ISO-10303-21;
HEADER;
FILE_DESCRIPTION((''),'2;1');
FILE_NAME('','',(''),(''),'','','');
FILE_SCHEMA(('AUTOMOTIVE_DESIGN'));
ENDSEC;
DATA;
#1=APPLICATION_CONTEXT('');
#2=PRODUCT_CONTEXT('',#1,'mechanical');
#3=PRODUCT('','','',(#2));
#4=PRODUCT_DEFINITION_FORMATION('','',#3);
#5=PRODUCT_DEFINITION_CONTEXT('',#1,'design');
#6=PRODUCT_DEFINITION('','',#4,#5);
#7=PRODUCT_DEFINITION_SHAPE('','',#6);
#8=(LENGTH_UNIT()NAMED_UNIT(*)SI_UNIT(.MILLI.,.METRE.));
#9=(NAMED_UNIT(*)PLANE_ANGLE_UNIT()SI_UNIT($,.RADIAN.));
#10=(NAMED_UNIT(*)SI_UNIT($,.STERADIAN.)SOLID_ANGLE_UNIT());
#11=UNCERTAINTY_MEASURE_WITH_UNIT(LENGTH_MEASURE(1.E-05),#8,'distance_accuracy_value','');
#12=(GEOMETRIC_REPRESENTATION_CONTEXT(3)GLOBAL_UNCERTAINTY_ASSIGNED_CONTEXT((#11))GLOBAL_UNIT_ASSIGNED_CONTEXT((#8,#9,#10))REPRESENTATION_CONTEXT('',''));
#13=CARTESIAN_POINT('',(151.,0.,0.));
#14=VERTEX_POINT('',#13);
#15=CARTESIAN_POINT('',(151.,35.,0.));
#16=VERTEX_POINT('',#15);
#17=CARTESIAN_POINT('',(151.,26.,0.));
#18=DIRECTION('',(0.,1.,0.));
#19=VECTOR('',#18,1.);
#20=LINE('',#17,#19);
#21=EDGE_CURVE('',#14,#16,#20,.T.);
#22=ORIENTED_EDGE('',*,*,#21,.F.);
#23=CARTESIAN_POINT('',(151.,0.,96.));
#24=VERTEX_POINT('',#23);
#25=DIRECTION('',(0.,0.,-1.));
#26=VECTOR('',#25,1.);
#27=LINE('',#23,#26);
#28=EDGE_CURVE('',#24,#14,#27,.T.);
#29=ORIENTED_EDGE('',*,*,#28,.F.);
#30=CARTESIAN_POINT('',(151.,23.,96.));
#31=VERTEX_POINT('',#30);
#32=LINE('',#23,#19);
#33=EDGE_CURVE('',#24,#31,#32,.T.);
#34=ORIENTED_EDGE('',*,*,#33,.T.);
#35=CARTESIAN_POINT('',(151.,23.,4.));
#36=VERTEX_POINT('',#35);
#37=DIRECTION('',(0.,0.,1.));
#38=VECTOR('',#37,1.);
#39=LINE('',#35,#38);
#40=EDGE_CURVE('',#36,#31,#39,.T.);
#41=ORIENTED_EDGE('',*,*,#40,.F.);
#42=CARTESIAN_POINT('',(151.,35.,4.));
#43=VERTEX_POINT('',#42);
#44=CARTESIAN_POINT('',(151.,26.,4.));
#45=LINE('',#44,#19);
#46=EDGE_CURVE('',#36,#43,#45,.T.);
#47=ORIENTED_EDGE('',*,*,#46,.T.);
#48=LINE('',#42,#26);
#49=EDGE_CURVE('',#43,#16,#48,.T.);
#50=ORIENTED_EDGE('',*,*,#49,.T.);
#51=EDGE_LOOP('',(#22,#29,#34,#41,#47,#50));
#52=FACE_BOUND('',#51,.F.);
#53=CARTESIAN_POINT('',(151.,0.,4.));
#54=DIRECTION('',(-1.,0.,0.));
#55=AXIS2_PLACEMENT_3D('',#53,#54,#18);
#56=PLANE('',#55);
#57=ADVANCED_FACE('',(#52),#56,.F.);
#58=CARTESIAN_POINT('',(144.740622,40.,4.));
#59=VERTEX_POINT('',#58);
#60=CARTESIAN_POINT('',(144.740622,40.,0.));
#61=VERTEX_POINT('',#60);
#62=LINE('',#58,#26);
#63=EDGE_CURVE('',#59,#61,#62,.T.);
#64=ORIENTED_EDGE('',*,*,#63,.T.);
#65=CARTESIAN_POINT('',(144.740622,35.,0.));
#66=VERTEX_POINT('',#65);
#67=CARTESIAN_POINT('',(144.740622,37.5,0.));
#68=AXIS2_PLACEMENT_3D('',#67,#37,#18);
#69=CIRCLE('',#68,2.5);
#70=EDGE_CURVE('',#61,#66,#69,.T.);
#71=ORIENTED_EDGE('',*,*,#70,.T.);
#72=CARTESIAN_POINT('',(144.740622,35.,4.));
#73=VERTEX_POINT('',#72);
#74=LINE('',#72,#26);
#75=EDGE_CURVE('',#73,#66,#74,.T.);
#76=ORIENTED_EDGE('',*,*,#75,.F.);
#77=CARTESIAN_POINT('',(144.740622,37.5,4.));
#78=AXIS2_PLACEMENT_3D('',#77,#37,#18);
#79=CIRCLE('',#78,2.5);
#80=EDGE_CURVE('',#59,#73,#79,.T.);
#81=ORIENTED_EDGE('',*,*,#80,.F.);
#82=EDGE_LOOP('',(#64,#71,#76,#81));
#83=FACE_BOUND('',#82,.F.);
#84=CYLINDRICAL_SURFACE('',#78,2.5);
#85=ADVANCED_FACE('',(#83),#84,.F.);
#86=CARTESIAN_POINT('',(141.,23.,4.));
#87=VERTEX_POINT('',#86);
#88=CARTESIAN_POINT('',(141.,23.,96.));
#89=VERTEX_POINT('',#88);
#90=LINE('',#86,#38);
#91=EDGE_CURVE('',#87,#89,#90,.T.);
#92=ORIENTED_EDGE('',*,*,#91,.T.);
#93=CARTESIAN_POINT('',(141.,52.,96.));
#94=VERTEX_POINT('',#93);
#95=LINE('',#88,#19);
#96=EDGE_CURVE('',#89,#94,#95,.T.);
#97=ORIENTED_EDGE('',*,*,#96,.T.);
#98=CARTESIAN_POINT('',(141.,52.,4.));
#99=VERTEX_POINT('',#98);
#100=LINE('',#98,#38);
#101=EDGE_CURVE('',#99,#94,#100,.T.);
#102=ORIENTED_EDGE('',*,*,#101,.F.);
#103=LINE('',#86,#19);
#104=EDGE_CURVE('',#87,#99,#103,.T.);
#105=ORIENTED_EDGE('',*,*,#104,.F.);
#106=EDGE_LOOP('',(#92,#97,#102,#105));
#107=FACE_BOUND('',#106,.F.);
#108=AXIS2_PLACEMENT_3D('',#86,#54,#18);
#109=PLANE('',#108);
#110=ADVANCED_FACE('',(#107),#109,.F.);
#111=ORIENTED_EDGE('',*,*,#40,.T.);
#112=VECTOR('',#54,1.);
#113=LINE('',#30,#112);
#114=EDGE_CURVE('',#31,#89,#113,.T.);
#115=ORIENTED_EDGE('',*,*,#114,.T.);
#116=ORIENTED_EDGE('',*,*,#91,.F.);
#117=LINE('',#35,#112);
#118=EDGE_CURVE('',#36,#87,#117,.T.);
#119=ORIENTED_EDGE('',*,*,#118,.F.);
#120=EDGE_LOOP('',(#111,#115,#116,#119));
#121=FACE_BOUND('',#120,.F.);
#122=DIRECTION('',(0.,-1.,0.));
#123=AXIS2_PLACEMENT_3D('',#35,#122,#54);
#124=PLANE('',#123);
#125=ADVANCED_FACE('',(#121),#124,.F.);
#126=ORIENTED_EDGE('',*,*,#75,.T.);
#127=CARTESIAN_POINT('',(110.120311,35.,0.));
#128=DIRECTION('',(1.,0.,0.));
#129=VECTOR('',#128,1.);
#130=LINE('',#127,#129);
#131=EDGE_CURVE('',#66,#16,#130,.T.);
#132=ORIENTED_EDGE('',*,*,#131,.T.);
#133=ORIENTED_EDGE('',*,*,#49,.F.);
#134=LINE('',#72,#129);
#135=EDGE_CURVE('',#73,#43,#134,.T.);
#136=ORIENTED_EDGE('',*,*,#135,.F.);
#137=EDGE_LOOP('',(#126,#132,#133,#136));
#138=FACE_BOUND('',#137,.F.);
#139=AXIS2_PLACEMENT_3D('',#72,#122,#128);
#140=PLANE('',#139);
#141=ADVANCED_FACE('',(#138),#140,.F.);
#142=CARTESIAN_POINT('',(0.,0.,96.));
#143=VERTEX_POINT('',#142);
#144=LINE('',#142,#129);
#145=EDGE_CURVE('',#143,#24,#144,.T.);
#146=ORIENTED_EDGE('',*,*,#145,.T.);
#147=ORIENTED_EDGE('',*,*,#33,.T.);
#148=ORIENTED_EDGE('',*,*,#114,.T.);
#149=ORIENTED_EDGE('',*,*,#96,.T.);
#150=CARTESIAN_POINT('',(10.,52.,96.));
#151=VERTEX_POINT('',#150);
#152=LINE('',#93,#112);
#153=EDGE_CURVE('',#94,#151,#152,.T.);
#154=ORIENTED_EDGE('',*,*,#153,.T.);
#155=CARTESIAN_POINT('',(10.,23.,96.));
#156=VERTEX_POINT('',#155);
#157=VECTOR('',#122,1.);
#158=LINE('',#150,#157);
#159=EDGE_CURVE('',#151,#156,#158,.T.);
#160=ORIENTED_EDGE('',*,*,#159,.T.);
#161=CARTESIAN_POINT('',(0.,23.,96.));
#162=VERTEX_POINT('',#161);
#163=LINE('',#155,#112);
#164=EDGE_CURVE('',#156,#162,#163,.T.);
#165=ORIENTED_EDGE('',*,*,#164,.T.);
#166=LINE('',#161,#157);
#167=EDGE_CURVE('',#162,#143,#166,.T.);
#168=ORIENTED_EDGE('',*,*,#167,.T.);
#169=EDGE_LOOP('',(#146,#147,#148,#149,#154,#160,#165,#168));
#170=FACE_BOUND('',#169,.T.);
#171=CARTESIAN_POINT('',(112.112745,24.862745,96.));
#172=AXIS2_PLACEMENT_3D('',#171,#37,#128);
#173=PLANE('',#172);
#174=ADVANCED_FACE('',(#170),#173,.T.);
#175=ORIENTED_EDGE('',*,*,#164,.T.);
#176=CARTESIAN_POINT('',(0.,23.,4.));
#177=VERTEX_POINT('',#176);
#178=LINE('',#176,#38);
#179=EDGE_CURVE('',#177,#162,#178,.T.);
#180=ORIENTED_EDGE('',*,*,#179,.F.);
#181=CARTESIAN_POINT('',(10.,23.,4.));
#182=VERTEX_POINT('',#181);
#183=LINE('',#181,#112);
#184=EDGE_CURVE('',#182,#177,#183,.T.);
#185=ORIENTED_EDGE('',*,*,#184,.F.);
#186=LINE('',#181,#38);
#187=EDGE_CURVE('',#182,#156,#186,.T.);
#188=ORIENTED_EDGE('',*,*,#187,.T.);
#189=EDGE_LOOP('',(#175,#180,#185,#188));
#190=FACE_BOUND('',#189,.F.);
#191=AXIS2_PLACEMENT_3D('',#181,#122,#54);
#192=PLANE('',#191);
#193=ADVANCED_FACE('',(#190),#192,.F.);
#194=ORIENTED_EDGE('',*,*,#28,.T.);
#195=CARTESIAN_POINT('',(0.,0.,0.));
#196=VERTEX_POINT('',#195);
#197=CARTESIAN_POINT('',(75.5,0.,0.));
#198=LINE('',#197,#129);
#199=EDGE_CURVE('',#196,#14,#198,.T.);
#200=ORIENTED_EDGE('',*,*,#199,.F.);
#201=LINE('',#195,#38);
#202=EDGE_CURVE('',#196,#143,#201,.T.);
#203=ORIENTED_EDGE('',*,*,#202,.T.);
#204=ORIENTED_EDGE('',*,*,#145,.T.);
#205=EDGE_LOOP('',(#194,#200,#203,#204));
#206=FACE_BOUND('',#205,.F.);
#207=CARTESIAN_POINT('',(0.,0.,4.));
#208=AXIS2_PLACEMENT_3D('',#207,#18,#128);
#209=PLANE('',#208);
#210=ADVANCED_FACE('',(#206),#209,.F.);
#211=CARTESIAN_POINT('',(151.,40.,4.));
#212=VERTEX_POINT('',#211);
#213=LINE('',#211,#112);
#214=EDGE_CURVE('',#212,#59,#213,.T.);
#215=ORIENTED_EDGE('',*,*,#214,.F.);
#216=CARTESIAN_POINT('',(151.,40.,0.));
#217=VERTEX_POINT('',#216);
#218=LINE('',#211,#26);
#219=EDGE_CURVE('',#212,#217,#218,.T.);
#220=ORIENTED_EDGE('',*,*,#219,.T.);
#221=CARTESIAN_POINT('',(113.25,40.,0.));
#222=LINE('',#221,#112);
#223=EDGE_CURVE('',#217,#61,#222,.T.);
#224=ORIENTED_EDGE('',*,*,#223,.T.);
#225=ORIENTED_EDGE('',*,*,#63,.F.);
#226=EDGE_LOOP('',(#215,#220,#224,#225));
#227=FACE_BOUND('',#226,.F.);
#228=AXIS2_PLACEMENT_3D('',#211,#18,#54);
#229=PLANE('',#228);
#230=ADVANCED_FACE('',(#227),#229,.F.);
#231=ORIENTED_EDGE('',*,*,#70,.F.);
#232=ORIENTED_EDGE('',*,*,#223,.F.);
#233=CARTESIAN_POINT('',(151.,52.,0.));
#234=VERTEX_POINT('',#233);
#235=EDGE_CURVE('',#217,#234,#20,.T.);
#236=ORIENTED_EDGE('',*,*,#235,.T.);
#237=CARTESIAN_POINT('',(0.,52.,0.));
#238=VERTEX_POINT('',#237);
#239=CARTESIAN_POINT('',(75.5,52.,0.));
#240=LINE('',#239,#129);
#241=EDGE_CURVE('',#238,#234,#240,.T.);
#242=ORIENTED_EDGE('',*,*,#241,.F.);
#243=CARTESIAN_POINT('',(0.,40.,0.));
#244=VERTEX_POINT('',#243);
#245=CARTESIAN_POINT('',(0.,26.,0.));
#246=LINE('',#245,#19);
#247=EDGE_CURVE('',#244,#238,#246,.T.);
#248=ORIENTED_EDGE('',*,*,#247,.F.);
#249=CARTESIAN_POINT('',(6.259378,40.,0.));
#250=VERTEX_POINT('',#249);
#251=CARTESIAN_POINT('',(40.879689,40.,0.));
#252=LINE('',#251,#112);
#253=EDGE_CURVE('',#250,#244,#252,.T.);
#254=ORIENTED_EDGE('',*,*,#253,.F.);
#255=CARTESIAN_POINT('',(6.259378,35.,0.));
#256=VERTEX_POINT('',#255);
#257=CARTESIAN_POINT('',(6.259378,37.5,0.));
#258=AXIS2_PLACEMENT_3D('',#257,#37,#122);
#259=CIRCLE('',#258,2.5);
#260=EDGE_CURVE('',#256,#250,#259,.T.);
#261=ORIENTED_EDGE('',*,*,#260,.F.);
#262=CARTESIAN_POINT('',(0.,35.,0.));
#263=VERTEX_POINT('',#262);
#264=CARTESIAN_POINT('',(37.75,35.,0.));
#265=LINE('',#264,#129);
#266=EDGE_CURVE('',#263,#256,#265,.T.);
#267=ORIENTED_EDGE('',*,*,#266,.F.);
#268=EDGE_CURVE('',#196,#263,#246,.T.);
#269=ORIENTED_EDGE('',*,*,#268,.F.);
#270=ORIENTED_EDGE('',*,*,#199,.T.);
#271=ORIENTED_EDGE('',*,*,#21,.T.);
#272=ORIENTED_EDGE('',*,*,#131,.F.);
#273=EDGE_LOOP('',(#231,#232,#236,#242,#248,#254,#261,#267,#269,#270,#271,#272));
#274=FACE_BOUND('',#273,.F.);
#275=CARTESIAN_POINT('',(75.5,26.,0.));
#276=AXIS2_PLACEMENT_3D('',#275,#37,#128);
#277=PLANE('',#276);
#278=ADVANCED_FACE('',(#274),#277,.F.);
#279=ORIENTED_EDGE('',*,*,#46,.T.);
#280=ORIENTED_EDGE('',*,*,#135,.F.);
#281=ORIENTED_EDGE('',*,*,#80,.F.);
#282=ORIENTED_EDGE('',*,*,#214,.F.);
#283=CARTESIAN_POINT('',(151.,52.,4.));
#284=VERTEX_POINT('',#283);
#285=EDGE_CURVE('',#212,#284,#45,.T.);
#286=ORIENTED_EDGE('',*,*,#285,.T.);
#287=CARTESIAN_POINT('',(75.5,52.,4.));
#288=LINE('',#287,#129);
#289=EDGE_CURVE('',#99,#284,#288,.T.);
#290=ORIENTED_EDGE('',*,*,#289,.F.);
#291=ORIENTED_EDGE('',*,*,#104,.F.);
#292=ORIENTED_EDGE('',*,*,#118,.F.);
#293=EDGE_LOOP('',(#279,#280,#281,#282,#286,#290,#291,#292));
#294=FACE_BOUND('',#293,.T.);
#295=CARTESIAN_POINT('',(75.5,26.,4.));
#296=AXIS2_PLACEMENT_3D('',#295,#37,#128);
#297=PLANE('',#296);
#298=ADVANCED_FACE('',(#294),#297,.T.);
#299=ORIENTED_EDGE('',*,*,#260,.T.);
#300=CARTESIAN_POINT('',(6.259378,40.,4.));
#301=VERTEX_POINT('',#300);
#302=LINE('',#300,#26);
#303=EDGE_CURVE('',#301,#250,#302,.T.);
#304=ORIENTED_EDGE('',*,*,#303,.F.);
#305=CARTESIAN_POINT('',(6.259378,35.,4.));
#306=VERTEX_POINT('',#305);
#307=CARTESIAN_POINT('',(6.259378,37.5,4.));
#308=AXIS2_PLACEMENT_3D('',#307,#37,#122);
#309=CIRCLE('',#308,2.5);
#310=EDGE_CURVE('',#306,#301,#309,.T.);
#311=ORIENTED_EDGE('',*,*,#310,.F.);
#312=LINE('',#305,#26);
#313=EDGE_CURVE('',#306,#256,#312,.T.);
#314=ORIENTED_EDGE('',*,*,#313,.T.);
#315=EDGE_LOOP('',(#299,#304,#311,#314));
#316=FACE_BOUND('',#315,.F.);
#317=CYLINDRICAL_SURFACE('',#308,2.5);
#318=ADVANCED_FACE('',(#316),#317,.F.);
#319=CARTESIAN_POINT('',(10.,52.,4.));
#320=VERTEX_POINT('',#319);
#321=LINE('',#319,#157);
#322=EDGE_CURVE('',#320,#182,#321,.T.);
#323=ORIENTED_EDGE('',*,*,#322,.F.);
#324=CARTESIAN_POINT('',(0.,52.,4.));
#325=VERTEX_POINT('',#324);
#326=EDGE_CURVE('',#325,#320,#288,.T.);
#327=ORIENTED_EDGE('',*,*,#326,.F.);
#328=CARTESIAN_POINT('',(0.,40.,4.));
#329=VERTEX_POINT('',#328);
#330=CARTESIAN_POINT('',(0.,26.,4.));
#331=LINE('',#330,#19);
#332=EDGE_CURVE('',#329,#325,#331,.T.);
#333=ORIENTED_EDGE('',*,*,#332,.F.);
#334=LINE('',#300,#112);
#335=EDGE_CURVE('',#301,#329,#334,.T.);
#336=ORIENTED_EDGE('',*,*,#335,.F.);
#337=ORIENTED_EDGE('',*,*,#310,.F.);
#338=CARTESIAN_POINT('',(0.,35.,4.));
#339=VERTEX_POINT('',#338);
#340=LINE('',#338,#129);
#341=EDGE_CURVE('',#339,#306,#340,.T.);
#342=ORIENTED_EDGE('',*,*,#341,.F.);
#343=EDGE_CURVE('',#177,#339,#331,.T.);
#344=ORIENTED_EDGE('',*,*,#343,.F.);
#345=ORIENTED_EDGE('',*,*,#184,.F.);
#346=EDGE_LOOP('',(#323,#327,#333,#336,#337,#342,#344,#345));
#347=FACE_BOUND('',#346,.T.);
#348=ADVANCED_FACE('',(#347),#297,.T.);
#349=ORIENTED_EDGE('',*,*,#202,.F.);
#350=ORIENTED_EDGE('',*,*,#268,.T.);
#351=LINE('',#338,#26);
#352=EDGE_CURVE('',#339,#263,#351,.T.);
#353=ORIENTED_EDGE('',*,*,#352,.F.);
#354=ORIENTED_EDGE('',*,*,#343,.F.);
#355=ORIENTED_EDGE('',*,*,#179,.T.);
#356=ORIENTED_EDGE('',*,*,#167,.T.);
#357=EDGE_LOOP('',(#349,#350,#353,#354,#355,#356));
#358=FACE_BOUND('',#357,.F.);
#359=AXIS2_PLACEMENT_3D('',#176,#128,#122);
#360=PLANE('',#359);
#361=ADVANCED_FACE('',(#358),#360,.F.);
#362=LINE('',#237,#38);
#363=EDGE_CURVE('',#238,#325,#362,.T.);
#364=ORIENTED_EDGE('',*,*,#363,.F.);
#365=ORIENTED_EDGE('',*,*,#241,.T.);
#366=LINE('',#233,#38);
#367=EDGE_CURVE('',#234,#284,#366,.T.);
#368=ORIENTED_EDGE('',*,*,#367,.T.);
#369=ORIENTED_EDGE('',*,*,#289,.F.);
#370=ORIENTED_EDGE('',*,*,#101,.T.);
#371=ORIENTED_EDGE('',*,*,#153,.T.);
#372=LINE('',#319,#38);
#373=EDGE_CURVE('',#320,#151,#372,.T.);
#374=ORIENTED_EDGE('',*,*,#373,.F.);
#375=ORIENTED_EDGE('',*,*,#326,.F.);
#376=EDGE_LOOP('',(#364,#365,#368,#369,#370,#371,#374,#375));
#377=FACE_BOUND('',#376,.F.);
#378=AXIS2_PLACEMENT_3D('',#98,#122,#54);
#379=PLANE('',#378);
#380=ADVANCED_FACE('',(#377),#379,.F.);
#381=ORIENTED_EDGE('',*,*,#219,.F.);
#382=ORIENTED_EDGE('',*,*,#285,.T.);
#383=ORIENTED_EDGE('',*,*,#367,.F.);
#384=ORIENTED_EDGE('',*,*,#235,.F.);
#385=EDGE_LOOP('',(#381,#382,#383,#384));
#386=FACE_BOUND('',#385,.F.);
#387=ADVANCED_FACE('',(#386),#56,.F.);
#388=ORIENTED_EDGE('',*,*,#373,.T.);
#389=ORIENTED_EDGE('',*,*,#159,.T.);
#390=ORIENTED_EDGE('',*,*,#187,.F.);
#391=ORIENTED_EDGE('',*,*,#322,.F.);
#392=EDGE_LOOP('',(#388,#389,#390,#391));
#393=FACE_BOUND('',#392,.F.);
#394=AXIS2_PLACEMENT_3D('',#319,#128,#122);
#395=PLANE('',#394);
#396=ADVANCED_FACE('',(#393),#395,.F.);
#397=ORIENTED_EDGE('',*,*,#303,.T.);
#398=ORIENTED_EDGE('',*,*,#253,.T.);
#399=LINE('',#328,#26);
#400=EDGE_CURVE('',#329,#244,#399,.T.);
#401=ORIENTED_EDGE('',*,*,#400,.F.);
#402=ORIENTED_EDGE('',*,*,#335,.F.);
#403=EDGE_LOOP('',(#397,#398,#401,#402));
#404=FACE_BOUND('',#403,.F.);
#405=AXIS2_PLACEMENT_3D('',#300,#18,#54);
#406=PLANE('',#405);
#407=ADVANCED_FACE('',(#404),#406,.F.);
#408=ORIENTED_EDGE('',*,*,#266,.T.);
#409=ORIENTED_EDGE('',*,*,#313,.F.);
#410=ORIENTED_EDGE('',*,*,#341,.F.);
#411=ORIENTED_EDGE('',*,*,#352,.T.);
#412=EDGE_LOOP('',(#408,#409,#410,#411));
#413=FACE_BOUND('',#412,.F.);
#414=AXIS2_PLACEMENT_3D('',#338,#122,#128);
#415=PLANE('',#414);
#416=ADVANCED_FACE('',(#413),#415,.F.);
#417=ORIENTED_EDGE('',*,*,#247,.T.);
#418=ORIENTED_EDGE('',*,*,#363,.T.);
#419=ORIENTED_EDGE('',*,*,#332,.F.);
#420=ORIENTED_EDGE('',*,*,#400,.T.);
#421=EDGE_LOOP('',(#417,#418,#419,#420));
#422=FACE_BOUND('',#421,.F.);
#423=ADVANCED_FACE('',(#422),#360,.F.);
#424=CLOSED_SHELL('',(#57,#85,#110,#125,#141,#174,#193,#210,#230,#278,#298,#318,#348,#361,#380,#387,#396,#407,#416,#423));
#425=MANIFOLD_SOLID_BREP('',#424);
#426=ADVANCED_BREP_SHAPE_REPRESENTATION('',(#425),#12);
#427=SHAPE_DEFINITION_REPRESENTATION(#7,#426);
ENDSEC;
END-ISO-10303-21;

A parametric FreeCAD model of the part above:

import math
import FreeCAD as App
import Part
import Sketcher

V = App.Vector

doc = App.newDocument("Part")
body = doc.addObject("PartDesign::Body", "Body")

sketch1 = body.newObject("Sketcher::SketchObject", "Sketch")
sketch1.AttachmentSupport = (doc.getObject("XY_Plane"), [""])
sketch1.MapMode = "FlatFace"
sketch1.addGeometry([
    Part.LineSegment(V(0, 52, 0), V(0, 0, 0)),
    Part.LineSegment(V(0, 0, 0), V(151, 0, 0)),
    Part.LineSegment(V(151, 0, 0), V(151, 52, 0)),
    Part.LineSegment(V(151, 52, 0), V(0, 52, 0)),
], False)
sketch1.addConstraint([
    Sketcher.Constraint("Coincident", 0, 2, 1, 1),
    Sketcher.Constraint("Coincident", 1, 2, 2, 1),
    Sketcher.Constraint("Coincident", 2, 2, 3, 1),
    Sketcher.Constraint("Coincident", 3, 2, 0, 1),
    Sketcher.Constraint("Vertical", 0),
    Sketcher.Constraint("Horizontal", 1),
    Sketcher.Constraint("Vertical", 2),
    Sketcher.Constraint("Horizontal", 3),
    Sketcher.Constraint("Coincident", 0, 2, -1, 1),
    Sketcher.Constraint("DistanceX", 1, 1, 1, 2, 151.0),
    Sketcher.Constraint("DistanceY", 0, 2, 0, 1, 52.0),
])
pad1 = body.newObject("PartDesign::Pad", "Pad")
pad1.Profile = sketch1
pad1.Length = 4

sketch2 = body.newObject("Sketcher::SketchObject", "Sketch001")
sketch2.AttachmentSupport = (doc.getObject("XY_Plane"), [""])
sketch2.MapMode = "FlatFace"
sketch2.AttachmentOffset = App.Placement(V(0, 0, 4), App.Rotation())
sketch2.addGeometry([
    Part.LineSegment(V(141, 23, 0), V(141, 52, 0)),
    Part.LineSegment(V(141, 52, 0), V(10, 52, 0)),
    Part.LineSegment(V(10, 52, 0), V(10, 23, 0)),
    Part.LineSegment(V(10, 23, 0), V(0, 23, 0)),
    Part.LineSegment(V(0, 23, 0), V(0, 0, 0)),
    Part.LineSegment(V(0, 0, 0), V(151, 0, 0)),
    Part.LineSegment(V(151, 0, 0), V(151, 23, 0)),
    Part.LineSegment(V(151, 23, 0), V(141, 23, 0)),
], False)
sketch2.addConstraint([
    Sketcher.Constraint("Coincident", 0, 2, 1, 1),
    Sketcher.Constraint("Coincident", 1, 2, 2, 1),
    Sketcher.Constraint("Coincident", 2, 2, 3, 1),
    Sketcher.Constraint("Coincident", 3, 2, 4, 1),
    Sketcher.Constraint("Coincident", 4, 2, 5, 1),
    Sketcher.Constraint("Coincident", 5, 2, 6, 1),
    Sketcher.Constraint("Coincident", 6, 2, 7, 1),
    Sketcher.Constraint("Coincident", 7, 2, 0, 1),
    Sketcher.Constraint("Vertical", 0),
    Sketcher.Constraint("Horizontal", 1),
    Sketcher.Constraint("Vertical", 2),
    Sketcher.Constraint("Horizontal", 3),
    Sketcher.Constraint("Vertical", 4),
    Sketcher.Constraint("Horizontal", 5),
    Sketcher.Constraint("Vertical", 6),
    Sketcher.Constraint("Horizontal", 7),
    Sketcher.Constraint("Coincident", 4, 2, -1, 1),
    Sketcher.Constraint("Horizontal", 3, 2, 6, 2),
    Sketcher.Constraint("Equal", 3, 7),
    Sketcher.Constraint("DistanceX", 1, 2, 1, 1, 131.0),
    Sketcher.Constraint("DistanceX", 3, 2, 3, 1, 10.0),
    Sketcher.Constraint("DistanceY", 0, 1, 0, 2, 29.0),
    Sketcher.Constraint("DistanceY", 4, 2, 4, 1, 23.0),
])
pad2 = body.newObject("PartDesign::Pad", "Pad001")
pad2.Profile = sketch2
pad2.Length = 92

sketch3 = body.newObject("Sketcher::SketchObject", "Sketch002")
sketch3.AttachmentSupport = (doc.getObject("XY_Plane"), [""])
sketch3.MapMode = "FlatFace"
sketch3.AttachmentOffset = App.Placement(V(0, 0, 4), App.Rotation())
sketch3.addGeometry([
    Part.LineSegment(V(6.3, 40, 0), V(0, 40, 0)),
    Part.LineSegment(V(0, 40, 0), V(0, 35, 0)),
    Part.LineSegment(V(0, 35, 0), V(6.3, 35, 0)),
    Part.ArcOfCircle(Part.Circle(V(6.3, 37.5, 0), V(0, 0, 1), 2.5), math.radians(-90), math.radians(90)),
    Part.LineSegment(V(151, 35, 0), V(151, 40, 0)),
    Part.LineSegment(V(151, 40, 0), V(144.7, 40, 0)),
    Part.ArcOfCircle(Part.Circle(V(144.7, 37.5, 0), V(0, 0, 1), 2.5), math.radians(90), math.radians(270)),
    Part.LineSegment(V(144.7, 35, 0), V(151, 35, 0)),
], False)
sketch3.addConstraint([
    Sketcher.Constraint("Coincident", 0, 2, 1, 1),
    Sketcher.Constraint("Coincident", 1, 2, 2, 1),
    Sketcher.Constraint("Tangent", 2, 2, 3, 1),
    Sketcher.Constraint("Tangent", 3, 2, 0, 1),
    Sketcher.Constraint("Coincident", 4, 2, 5, 1),
    Sketcher.Constraint("Tangent", 5, 2, 6, 1),
    Sketcher.Constraint("Tangent", 6, 2, 7, 1),
    Sketcher.Constraint("Coincident", 7, 2, 4, 1),
    Sketcher.Constraint("Horizontal", 0),
    Sketcher.Constraint("Vertical", 1),
    Sketcher.Constraint("Horizontal", 2),
    Sketcher.Constraint("Vertical", 4),
    Sketcher.Constraint("Horizontal", 5),
    Sketcher.Constraint("Horizontal", 7),
    Sketcher.Constraint("Equal", 3, 6),
    Sketcher.Constraint("PointOnObject", 0, 2, -2),
    Sketcher.Constraint("Horizontal", 3, 3, 6, 3),
    Sketcher.Constraint("Equal", 2, 5),
    Sketcher.Constraint("Radius", 3, 2.5),
    Sketcher.Constraint("DistanceY", -1, 1, 0, 2, 40.0),
    Sketcher.Constraint("DistanceX", -1, 1, 4, 2, 151.0),
    Sketcher.Constraint("DistanceX", 0, 2, 0, 1, 6.259378),
])
pocket1 = body.newObject("PartDesign::Pocket", "Pocket")
pocket1.Profile = sketch3
pocket1.Length = 25

doc.recompute()
